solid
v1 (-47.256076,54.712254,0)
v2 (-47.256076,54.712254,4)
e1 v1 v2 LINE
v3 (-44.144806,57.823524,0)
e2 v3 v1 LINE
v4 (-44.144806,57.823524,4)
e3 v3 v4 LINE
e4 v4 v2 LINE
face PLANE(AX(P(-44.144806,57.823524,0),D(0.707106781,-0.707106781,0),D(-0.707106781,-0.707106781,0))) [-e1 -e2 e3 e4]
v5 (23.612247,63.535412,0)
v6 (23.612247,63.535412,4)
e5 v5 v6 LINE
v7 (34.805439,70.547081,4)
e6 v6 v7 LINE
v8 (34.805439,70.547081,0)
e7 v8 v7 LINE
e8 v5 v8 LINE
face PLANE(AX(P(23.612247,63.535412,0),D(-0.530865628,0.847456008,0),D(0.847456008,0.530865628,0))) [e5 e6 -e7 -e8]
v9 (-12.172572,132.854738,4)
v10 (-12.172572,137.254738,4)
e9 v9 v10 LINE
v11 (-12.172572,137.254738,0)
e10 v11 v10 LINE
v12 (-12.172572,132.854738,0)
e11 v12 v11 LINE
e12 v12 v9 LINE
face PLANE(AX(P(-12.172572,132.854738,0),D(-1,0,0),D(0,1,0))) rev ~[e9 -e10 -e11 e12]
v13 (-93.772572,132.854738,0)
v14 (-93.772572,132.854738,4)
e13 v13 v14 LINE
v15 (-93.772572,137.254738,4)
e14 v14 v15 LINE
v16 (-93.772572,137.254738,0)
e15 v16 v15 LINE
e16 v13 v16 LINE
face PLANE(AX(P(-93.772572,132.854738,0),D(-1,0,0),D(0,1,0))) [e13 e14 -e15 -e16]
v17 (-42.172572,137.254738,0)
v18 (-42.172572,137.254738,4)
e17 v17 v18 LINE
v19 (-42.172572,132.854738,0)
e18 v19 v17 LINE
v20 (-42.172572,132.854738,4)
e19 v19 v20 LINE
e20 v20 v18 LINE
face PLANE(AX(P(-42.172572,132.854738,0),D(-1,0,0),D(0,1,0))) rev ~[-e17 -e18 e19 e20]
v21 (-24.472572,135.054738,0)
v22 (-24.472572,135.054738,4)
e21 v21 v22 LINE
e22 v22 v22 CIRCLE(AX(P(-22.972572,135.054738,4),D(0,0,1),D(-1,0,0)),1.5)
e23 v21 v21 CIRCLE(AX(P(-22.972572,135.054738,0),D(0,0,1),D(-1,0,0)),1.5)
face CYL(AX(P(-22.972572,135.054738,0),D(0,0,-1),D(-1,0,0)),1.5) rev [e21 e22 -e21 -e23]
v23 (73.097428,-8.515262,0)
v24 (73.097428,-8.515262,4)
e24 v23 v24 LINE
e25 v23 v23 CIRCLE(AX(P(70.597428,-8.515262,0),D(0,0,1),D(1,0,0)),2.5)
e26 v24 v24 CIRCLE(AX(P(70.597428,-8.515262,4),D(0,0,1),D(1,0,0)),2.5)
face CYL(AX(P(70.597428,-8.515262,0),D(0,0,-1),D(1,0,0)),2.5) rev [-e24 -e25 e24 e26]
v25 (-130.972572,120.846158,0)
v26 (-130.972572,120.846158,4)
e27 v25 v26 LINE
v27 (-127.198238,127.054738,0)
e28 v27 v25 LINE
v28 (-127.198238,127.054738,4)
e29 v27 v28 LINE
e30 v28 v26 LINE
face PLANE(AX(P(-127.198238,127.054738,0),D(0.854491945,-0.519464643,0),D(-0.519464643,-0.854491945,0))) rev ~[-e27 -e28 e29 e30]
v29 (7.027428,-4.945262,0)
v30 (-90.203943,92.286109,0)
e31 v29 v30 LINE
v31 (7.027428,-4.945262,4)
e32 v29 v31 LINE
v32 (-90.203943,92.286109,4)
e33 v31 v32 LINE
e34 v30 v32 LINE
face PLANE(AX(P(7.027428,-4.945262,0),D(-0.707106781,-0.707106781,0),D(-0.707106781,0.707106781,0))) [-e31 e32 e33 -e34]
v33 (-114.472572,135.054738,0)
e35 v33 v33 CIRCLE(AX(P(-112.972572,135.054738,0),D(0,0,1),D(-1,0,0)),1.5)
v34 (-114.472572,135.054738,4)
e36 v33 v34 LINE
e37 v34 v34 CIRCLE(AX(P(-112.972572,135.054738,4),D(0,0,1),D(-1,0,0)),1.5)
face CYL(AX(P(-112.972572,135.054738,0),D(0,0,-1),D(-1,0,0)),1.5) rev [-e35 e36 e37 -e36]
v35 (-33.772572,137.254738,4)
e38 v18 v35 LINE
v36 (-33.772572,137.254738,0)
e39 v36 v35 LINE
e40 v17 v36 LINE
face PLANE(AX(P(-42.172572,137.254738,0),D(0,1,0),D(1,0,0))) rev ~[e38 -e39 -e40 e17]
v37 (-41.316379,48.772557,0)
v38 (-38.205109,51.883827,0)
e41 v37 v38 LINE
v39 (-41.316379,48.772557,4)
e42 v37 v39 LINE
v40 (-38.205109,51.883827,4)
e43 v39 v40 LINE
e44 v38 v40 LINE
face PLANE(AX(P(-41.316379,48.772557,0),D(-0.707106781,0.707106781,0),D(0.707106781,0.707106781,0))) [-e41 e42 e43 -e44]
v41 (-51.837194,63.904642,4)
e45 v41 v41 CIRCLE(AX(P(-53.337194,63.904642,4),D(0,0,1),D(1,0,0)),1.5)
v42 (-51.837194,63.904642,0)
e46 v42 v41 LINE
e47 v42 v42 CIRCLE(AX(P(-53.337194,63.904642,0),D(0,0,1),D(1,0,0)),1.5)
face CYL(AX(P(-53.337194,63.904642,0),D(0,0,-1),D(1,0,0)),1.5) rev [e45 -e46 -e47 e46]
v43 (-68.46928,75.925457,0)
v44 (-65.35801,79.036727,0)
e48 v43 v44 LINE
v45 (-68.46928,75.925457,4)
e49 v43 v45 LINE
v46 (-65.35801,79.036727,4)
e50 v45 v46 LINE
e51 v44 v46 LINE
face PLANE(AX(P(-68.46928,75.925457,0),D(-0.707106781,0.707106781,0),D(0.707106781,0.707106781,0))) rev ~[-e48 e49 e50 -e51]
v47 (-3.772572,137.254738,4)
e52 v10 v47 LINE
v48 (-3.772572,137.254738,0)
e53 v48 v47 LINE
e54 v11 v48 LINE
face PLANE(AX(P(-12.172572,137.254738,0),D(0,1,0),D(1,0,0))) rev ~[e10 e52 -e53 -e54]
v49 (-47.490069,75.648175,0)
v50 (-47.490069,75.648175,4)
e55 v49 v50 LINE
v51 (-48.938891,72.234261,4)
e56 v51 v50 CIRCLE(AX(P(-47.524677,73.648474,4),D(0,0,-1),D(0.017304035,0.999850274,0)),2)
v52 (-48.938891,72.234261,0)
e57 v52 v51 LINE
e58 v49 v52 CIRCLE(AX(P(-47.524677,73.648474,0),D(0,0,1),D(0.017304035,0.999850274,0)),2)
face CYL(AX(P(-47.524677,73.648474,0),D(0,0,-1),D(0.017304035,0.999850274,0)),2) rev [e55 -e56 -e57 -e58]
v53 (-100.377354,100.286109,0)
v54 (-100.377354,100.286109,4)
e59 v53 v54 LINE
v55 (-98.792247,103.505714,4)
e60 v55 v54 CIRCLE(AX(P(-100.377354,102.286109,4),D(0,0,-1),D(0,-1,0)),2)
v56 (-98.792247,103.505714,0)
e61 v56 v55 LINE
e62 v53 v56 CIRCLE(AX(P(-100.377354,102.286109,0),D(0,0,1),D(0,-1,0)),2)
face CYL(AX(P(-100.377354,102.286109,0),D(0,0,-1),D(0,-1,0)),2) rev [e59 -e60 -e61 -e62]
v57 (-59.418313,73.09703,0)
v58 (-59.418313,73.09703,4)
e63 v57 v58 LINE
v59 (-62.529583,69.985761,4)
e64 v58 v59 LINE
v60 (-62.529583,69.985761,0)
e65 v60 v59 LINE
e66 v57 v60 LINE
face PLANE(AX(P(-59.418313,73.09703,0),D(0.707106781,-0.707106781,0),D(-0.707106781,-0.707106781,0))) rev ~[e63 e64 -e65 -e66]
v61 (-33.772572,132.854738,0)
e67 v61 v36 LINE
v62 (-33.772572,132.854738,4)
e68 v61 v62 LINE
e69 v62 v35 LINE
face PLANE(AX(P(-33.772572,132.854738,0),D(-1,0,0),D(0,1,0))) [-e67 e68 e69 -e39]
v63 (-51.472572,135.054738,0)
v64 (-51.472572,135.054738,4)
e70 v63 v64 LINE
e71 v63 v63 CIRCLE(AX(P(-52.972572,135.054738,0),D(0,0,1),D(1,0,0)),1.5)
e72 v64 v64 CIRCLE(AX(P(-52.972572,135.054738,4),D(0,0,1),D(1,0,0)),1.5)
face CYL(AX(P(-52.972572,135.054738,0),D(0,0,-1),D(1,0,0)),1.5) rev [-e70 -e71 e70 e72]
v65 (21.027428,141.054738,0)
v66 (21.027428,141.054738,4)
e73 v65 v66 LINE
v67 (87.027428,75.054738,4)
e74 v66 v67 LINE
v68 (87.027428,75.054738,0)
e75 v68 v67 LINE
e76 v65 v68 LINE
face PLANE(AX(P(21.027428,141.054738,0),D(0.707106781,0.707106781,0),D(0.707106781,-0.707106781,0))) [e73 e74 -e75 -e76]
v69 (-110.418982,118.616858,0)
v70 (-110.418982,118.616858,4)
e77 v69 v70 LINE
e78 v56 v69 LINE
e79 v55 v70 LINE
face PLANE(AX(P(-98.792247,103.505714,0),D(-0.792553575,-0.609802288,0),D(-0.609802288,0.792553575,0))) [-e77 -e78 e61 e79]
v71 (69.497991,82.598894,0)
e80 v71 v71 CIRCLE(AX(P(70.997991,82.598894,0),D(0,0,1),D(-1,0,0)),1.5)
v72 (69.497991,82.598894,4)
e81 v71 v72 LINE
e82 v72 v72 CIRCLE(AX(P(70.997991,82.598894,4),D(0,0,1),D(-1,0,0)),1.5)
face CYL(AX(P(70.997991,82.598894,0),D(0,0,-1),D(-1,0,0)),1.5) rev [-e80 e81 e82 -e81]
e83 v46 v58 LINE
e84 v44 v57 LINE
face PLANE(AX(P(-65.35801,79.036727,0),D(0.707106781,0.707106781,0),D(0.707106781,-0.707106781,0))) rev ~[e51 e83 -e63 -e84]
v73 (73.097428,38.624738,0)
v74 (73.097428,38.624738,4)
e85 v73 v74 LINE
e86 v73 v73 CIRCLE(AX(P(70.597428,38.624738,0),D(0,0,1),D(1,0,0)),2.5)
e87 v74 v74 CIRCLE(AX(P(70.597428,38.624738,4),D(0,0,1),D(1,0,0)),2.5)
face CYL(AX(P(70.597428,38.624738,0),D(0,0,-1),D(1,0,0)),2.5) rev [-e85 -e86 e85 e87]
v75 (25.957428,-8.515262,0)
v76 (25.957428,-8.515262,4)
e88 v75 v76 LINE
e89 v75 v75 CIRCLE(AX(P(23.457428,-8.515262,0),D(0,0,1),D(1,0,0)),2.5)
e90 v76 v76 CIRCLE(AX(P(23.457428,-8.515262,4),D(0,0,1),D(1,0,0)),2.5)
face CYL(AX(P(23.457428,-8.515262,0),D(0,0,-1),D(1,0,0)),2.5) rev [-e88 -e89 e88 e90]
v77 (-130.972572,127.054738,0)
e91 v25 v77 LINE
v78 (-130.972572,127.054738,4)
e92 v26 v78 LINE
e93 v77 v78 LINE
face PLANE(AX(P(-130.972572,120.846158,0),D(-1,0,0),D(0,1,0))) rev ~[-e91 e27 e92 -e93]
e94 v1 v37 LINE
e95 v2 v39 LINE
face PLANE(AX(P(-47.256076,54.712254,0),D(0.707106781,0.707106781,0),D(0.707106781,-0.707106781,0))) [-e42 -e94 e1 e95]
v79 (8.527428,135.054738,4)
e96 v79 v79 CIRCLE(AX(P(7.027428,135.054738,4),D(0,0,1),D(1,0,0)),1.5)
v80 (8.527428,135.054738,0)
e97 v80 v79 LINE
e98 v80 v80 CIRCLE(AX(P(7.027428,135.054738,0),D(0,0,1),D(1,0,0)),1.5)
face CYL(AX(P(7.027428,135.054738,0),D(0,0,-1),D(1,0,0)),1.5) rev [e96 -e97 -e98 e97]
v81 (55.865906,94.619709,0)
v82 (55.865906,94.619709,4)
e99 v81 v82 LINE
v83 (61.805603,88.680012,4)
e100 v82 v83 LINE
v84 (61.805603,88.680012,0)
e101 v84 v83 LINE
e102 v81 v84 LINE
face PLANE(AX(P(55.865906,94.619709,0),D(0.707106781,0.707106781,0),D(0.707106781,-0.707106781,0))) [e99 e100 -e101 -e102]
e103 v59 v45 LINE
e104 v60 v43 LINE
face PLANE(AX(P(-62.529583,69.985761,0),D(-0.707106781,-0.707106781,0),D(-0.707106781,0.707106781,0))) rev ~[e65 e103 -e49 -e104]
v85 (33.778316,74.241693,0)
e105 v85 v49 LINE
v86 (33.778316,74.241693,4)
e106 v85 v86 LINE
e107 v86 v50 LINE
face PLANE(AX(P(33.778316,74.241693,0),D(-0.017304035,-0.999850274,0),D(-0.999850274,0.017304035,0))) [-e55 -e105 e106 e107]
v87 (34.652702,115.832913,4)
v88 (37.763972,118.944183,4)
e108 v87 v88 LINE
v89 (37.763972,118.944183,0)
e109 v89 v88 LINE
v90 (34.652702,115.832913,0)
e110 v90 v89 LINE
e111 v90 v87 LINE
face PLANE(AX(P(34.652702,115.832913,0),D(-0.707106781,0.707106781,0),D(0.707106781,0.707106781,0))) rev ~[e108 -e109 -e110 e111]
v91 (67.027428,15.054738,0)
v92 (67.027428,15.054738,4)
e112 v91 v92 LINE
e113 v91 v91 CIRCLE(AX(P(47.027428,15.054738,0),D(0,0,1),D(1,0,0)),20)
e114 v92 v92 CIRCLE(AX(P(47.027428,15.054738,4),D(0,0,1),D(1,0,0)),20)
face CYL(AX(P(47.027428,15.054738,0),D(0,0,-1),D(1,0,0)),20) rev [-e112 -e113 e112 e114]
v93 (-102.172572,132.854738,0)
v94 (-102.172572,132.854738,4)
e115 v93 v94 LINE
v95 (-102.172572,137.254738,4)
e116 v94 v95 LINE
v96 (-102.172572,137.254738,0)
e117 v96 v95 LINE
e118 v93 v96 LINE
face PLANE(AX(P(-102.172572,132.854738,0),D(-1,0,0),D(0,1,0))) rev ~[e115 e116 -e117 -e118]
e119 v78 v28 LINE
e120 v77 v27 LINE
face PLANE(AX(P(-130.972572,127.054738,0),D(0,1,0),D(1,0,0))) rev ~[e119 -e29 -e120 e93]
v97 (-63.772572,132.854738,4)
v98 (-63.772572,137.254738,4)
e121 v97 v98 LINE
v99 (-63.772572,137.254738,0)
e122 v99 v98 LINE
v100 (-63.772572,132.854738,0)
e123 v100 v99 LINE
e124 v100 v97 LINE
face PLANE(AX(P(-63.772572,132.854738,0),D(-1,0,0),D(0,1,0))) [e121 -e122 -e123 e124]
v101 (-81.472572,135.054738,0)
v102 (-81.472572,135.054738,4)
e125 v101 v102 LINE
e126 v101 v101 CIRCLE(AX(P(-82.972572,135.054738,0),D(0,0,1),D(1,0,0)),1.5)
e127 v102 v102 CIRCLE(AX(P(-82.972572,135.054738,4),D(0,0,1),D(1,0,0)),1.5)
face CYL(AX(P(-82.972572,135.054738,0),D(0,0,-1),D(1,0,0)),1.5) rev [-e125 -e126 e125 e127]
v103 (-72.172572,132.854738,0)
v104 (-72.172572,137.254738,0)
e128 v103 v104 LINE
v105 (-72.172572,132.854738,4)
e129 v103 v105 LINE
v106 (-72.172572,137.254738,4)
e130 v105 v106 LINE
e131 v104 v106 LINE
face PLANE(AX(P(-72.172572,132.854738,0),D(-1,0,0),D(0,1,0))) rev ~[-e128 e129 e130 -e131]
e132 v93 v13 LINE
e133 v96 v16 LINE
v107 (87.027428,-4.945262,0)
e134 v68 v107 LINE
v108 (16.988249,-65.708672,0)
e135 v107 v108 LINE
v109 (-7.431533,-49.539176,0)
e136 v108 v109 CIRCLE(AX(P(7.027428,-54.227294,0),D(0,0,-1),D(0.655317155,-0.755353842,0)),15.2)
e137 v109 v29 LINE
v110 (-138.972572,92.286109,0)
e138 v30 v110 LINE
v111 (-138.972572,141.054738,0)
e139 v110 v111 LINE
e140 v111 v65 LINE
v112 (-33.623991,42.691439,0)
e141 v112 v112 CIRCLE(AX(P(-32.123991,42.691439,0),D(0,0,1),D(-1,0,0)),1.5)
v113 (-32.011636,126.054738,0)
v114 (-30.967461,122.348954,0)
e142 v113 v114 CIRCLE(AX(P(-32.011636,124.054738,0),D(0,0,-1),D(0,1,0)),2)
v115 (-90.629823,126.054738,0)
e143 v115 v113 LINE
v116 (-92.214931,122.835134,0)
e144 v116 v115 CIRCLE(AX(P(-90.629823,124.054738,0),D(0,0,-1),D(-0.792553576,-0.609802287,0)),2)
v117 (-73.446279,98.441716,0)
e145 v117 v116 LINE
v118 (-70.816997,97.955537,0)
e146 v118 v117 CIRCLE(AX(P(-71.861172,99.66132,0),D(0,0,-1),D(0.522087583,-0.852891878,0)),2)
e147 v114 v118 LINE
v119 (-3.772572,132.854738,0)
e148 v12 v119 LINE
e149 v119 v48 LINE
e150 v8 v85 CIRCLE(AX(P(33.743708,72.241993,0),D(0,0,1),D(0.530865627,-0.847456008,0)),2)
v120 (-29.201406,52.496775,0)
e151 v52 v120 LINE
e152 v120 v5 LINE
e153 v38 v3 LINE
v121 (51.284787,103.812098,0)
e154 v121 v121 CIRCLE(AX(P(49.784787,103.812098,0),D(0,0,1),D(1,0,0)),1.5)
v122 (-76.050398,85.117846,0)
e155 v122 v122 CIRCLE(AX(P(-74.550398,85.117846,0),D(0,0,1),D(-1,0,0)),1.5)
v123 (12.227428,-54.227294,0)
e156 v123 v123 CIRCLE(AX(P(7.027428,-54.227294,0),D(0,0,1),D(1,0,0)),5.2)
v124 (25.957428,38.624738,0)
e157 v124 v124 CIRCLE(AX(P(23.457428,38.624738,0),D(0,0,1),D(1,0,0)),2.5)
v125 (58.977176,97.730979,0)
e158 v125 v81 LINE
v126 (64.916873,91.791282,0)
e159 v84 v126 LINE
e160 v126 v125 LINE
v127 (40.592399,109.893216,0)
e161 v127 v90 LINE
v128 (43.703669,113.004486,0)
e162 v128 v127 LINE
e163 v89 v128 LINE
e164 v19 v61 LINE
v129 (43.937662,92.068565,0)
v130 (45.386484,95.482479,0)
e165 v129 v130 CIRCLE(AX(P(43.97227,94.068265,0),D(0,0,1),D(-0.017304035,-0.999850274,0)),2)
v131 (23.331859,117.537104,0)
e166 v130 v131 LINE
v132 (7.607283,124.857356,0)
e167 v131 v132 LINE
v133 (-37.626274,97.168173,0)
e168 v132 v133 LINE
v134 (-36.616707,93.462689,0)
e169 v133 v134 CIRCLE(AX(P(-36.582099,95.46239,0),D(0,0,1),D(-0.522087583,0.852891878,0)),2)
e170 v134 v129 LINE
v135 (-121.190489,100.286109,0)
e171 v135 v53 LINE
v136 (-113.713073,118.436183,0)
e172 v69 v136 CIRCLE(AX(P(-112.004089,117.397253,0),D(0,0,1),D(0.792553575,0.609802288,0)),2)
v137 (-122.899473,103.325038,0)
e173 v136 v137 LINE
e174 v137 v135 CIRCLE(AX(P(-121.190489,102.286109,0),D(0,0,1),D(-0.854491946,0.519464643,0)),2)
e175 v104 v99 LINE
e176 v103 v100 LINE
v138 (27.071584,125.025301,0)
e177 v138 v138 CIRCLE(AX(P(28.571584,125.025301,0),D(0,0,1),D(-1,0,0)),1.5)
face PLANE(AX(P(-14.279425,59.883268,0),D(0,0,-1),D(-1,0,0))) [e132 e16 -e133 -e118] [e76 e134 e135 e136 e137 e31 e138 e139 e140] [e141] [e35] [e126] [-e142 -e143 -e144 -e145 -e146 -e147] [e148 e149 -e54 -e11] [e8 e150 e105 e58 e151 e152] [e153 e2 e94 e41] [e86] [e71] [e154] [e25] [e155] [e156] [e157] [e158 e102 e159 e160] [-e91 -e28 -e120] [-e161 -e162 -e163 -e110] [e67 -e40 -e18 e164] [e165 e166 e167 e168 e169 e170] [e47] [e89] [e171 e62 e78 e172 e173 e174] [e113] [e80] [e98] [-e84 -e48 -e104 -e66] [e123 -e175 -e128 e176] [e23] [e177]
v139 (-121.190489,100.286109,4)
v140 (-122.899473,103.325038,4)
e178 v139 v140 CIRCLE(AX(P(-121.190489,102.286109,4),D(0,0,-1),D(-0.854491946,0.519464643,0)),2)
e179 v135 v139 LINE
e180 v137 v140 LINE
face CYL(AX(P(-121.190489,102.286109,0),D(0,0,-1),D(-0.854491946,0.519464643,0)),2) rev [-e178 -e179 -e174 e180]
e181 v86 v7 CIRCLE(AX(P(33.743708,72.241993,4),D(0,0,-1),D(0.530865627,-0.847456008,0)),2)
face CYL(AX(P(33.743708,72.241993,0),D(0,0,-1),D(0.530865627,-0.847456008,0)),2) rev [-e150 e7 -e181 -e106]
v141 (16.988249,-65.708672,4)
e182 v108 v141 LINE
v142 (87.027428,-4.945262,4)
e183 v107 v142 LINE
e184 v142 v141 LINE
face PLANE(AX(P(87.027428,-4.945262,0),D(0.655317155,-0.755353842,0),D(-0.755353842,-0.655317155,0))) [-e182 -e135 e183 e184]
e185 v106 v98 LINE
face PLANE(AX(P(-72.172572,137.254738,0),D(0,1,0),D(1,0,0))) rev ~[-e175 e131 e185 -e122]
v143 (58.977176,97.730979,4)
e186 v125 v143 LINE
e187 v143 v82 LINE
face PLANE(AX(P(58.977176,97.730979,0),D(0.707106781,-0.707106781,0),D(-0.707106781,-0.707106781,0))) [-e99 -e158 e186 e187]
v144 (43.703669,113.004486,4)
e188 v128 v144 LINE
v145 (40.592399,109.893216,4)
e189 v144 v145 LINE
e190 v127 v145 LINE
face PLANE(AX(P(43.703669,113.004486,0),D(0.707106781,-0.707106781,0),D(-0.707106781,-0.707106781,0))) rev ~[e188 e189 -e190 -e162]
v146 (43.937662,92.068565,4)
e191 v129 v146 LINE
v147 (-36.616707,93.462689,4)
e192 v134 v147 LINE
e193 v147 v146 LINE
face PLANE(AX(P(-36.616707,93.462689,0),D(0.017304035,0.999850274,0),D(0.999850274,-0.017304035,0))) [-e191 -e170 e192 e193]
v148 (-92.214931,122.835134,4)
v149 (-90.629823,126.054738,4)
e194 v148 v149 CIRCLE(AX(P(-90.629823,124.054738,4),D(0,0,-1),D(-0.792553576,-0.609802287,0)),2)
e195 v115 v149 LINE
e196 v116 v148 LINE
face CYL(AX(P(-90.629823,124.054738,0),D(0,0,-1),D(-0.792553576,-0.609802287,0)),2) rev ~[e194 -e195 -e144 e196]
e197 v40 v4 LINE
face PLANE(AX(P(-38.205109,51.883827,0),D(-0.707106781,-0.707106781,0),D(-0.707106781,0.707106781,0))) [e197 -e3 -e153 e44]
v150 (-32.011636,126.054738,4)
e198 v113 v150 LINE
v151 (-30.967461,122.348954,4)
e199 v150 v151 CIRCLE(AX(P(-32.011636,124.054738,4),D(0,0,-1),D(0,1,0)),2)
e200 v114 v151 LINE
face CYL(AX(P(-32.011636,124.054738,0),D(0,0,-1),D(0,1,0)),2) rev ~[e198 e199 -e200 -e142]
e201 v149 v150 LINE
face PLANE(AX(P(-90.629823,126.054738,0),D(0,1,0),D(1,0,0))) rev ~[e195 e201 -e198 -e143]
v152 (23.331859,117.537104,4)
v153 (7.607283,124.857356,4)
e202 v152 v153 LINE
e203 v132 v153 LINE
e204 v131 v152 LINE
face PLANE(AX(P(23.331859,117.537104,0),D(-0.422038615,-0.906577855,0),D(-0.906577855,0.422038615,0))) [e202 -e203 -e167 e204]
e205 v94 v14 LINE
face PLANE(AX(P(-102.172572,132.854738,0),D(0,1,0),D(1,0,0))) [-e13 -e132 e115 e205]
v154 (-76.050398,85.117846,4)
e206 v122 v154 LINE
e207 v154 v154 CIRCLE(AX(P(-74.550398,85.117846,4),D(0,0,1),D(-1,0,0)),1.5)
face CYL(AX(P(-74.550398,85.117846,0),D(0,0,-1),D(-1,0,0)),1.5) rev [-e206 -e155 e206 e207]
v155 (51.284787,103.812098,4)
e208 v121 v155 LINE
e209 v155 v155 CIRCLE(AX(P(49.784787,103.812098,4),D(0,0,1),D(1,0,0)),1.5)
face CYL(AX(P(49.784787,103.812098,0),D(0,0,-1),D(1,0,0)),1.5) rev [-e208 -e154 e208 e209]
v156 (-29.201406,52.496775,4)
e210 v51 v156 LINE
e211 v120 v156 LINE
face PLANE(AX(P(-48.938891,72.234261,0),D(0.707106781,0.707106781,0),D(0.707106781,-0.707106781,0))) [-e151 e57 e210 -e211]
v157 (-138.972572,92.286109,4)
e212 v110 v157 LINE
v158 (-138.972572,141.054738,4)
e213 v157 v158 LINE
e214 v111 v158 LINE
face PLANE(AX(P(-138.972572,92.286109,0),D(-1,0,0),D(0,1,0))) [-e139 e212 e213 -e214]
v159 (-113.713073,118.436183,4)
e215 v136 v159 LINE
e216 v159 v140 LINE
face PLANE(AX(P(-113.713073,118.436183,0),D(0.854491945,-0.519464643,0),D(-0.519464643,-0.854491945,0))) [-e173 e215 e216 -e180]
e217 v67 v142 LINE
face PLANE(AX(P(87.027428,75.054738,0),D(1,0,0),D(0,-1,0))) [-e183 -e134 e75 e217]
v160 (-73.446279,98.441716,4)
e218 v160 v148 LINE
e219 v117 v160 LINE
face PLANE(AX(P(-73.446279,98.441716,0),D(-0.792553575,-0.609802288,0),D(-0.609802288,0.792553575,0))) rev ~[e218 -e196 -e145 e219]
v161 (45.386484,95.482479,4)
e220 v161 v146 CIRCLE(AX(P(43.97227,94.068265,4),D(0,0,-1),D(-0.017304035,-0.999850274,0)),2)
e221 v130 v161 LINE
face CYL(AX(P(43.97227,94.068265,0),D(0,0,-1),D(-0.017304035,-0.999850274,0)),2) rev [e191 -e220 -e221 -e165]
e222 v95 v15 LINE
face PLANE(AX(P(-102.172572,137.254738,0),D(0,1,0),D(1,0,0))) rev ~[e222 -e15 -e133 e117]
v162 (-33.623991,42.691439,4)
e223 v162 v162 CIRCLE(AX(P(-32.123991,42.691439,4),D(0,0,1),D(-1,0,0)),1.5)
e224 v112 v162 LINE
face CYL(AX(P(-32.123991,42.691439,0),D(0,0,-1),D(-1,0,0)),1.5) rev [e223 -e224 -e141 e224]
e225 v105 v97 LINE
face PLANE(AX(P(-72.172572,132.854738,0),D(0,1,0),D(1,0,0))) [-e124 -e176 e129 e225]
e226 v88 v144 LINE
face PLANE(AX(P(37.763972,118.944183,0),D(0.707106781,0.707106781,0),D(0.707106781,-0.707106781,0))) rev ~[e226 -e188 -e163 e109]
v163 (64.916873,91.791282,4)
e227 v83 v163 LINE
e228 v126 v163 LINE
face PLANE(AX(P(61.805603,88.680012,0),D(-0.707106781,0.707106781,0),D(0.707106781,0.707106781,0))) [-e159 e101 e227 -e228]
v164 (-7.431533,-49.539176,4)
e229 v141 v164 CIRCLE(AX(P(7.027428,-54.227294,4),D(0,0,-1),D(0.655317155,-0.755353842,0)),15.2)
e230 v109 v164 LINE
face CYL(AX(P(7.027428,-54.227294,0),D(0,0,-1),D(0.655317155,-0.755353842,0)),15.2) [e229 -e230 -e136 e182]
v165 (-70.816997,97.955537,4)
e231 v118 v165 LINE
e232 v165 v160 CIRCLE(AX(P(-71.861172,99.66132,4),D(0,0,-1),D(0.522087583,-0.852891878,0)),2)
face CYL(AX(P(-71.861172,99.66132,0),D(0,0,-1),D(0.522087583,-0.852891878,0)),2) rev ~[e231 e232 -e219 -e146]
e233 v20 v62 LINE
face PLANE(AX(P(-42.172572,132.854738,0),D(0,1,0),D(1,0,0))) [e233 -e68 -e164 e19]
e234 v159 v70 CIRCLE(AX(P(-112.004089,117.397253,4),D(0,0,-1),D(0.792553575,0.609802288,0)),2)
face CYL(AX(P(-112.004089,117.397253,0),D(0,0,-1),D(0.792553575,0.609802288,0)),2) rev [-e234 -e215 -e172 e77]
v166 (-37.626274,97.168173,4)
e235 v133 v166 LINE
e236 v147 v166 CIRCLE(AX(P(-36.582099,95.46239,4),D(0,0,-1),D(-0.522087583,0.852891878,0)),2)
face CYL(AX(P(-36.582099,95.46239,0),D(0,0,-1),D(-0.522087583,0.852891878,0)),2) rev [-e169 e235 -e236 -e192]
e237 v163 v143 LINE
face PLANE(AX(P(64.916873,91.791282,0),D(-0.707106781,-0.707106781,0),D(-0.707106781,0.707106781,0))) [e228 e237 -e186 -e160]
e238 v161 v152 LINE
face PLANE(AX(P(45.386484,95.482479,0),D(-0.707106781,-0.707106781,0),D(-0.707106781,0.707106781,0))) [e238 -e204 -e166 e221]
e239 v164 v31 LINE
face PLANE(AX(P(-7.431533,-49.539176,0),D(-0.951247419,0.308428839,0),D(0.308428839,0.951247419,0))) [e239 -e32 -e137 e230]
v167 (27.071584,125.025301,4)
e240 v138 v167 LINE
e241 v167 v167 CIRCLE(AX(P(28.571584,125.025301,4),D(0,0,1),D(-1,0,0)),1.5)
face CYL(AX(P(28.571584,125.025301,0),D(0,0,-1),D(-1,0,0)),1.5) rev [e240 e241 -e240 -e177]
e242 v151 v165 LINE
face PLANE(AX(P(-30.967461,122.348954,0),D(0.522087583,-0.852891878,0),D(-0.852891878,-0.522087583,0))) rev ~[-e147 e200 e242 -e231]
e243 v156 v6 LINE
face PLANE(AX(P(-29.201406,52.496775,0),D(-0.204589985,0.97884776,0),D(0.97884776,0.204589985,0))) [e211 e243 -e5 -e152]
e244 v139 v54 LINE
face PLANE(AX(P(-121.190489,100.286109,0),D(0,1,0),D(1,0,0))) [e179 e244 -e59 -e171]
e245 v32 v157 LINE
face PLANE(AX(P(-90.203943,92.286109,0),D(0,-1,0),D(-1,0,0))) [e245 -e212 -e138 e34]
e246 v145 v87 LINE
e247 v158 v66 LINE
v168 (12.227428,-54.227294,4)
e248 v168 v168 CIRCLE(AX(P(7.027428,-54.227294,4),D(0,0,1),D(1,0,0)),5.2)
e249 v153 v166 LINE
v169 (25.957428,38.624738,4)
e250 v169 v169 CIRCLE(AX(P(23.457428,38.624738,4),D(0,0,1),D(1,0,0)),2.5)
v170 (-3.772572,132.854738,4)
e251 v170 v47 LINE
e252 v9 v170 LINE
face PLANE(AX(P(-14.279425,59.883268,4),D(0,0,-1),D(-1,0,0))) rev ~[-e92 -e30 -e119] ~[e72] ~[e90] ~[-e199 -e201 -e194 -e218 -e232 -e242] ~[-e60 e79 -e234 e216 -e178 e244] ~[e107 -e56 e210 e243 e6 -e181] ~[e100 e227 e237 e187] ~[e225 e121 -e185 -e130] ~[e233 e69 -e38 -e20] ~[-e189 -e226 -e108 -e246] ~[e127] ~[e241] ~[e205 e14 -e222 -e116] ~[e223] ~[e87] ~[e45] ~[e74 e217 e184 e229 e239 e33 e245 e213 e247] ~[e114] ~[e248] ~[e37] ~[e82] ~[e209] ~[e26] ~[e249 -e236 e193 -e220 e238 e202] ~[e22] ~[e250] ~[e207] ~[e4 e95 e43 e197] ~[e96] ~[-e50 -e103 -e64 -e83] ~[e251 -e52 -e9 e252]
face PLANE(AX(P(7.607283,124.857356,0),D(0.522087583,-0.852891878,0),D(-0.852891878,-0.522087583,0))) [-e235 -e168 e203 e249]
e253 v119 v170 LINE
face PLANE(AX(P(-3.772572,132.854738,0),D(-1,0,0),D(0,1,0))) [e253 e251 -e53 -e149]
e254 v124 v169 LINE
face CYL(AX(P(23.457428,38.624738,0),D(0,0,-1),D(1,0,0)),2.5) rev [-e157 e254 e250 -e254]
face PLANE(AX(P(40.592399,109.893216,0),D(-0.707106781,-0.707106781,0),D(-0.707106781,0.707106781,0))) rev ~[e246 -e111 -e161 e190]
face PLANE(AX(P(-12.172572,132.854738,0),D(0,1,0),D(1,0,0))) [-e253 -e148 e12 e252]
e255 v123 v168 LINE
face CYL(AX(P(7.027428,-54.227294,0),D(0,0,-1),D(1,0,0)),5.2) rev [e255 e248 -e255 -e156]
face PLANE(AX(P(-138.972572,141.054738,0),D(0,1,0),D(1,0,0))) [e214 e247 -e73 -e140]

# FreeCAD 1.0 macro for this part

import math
import FreeCAD as App
import Part
import Sketcher

V = App.Vector
Q = App.Units.Quantity

doc = App.newDocument("Part")
params = doc.addObject("Spreadsheet::Sheet", "Params")
for row, (alias, value) in enumerate([
    ("sketch1_diameter", "5 mm"),
    ("sketch1_diameter2", "40 mm"),
    ("sketch1_diameter3", "3 mm"),
    ("sketch1_diameter4", "10.4 mm"),
    ("sketch1_radius", "15.2 mm"),
    ("pad1_length", "4 mm"),
    ("sketch2_radius", "2 mm"),
    ("pocket1_length", "10 mm"),
], start=1):
    params.set(f"A{row}", alias)
    params.set(f"B{row}", "=" + value)
    params.setAlias(f"B{row}", alias)

body = doc.addObject("PartDesign::Body", "Body")

# Sketch on XY plane
sketch1 = body.newObject("Sketcher::SketchObject", "Sketch")
sketch1.AttachmentSupport = (doc.getObject("XY_Plane"), [""])
sketch1.MapMode = "FlatFace"
sketch1.addGeometry([
    Part.LineSegment(V(21, 141.1, 0), V(-139, 141.1, 0)),  # 0
    Part.LineSegment(V(-139, 141.1, 0), V(-139, 92.3, 0)),  # 1
    Part.LineSegment(V(-139, 92.3, 0), V(-90.2, 92.3, 0)),  # 2
    Part.LineSegment(V(-90.2, 92.3, 0), V(7, -4.9, 0)),  # 3
    Part.LineSegment(V(7, -4.9, 0), V(-7.4, -49.5, 0)),  # 4
    Part.ArcOfCircle(Part.Circle(V(7, -54.2, 0), V(0, 0, 1), 15.2), math.radians(162), math.radians(311)),  # 5
    Part.LineSegment(V(17, -65.7, 0), V(87, -4.9, 0)),  # 6
    Part.LineSegment(V(87, -4.9, 0), V(87, 75.1, 0)),  # 7
    Part.LineSegment(V(87, 75.1, 0), V(21, 141.1, 0)),  # 8
    Part.Circle(V(7, -54.2, 0), V(0, 0, 1), 5.2),  # 9
    Part.Circle(V(70.6, -8.5, 0), V(0, 0, 1), 2.5),  # 10
    Part.Circle(V(70.6, 38.6, 0), V(0, 0, 1), 2.5),  # 11
    Part.Circle(V(47, 15.1, 0), V(0, 0, 1), 20),  # 12
    Part.Circle(V(23.5, -8.5, 0), V(0, 0, 1), 2.5),  # 13
    Part.Circle(V(23.5, 38.6, 0), V(0, 0, 1), 2.5),  # 14
    Part.Circle(V(71, 82.6, 0), V(0, 0, 1), 1.5),  # 15
    Part.LineSegment(V(55.9, 94.6, 0), V(59, 97.7, 0)),  # 16
    Part.LineSegment(V(59, 97.7, 0), V(64.9, 91.8, 0)),  # 17
    Part.LineSegment(V(64.9, 91.8, 0), V(61.8, 88.7, 0)),  # 18
    Part.LineSegment(V(61.8, 88.7, 0), V(55.9, 94.6, 0)),  # 19
    Part.Circle(V(49.8, 103.8, 0), V(0, 0, 1), 1.5),  # 20
    Part.LineSegment(V(34.7, 115.8, 0), V(37.8, 118.9, 0)),  # 21
    Part.LineSegment(V(37.8, 118.9, 0), V(43.7, 113, 0)),  # 22
    Part.LineSegment(V(43.7, 113, 0), V(40.6, 109.9, 0)),  # 23
    Part.LineSegment(V(40.6, 109.9, 0), V(34.7, 115.8, 0)),  # 24
    Part.Circle(V(28.6, 125, 0), V(0, 0, 1), 1.5),  # 25
    Part.Circle(V(7, 135.1, 0), V(0, 0, 1), 1.5),  # 26
    Part.LineSegment(V(-12.2, 132.9, 0), V(-12.2, 137.3, 0)),  # 27
    Part.LineSegment(V(-12.2, 137.3, 0), V(-3.8, 137.3, 0)),  # 28
    Part.LineSegment(V(-3.8, 137.3, 0), V(-3.8, 132.9, 0)),  # 29
    Part.LineSegment(V(-3.8, 132.9, 0), V(-12.2, 132.9, 0)),  # 30
    Part.Circle(V(-32.1, 42.7, 0), V(0, 0, 1), 1.5),  # 31
    Part.LineSegment(V(-47.3, 54.7, 0), V(-44.1, 57.8, 0)),  # 32
    Part.LineSegment(V(-44.1, 57.8, 0), V(-38.2, 51.9, 0)),  # 33
    Part.LineSegment(V(-38.2, 51.9, 0), V(-41.3, 48.8, 0)),  # 34
    Part.LineSegment(V(-41.3, 48.8, 0), V(-47.3, 54.7, 0)),  # 35
    Part.Circle(V(-53.3, 63.9, 0), V(0, 0, 1), 1.5),  # 36
    Part.LineSegment(V(-68.5, 75.9, 0), V(-65.4, 79, 0)),  # 37
    Part.LineSegment(V(-65.4, 79, 0), V(-59.4, 73.1, 0)),  # 38
    Part.LineSegment(V(-59.4, 73.1, 0), V(-62.5, 70, 0)),  # 39
    Part.LineSegment(V(-62.5, 70, 0), V(-68.5, 75.9, 0)),  # 40
    Part.Circle(V(-74.6, 85.1, 0), V(0, 0, 1), 1.5),  # 41
    Part.Circle(V(-23, 135.1, 0), V(0, 0, 1), 1.5),  # 42
    Part.LineSegment(V(-42.2, 132.9, 0), V(-42.2, 137.3, 0)),  # 43
    Part.LineSegment(V(-42.2, 137.3, 0), V(-33.8, 137.3, 0)),  # 44
    Part.LineSegment(V(-33.8, 137.3, 0), V(-33.8, 132.9, 0)),  # 45
    Part.LineSegment(V(-33.8, 132.9, 0), V(-42.2, 132.9, 0)),  # 46
    Part.Circle(V(-53, 135.1, 0), V(0, 0, 1), 1.5),  # 47
    Part.LineSegment(V(-72.2, 132.9, 0), V(-72.2, 137.3, 0)),  # 48
    Part.LineSegment(V(-72.2, 137.3, 0), V(-63.8, 137.3, 0)),  # 49
    Part.LineSegment(V(-63.8, 137.3, 0), V(-63.8, 132.9, 0)),  # 50
    Part.LineSegment(V(-63.8, 132.9, 0), V(-72.2, 132.9, 0)),  # 51
    Part.Circle(V(-83, 135.1, 0), V(0, 0, 1), 1.5),  # 52
    Part.LineSegment(V(-102.2, 132.9, 0), V(-102.2, 137.3, 0)),  # 53
    Part.LineSegment(V(-102.2, 137.3, 0), V(-93.8, 137.3, 0)),  # 54
    Part.LineSegment(V(-93.8, 137.3, 0), V(-93.8, 132.9, 0)),  # 55
    Part.LineSegment(V(-93.8, 132.9, 0), V(-102.2, 132.9, 0)),  # 56
    Part.Circle(V(-113, 135.1, 0), V(0, 0, 1), 1.5),  # 57
], False)
sketch1.addConstraint([
    Sketcher.Constraint("Coincident", 0, 2, 1, 1),
    Sketcher.Constraint("Coincident", 1, 2, 2, 1),
    Sketcher.Constraint("Coincident", 2, 2, 3, 1),
    Sketcher.Constraint("Coincident", 3, 2, 4, 1),
    Sketcher.Constraint("Tangent", 4, 2, 5, 1),
    Sketcher.Constraint("Tangent", 5, 2, 6, 1),
    Sketcher.Constraint("Coincident", 6, 2, 7, 1),
    Sketcher.Constraint("Coincident", 7, 2, 8, 1),
    Sketcher.Constraint("Coincident", 8, 2, 0, 1),
    Sketcher.Constraint("Coincident", 16, 2, 17, 1),
    Sketcher.Constraint("Coincident", 17, 2, 18, 1),
    Sketcher.Constraint("Coincident", 18, 2, 19, 1),
    Sketcher.Constraint("Coincident", 19, 2, 16, 1),
    Sketcher.Constraint("Coincident", 21, 2, 22, 1),
    Sketcher.Constraint("Coincident", 22, 2, 23, 1),
    Sketcher.Constraint("Coincident", 23, 2, 24, 1),
    Sketcher.Constraint("Coincident", 24, 2, 21, 1),
    Sketcher.Constraint("Coincident", 27, 2, 28, 1),
    Sketcher.Constraint("Coincident", 28, 2, 29, 1),
    Sketcher.Constraint("Coincident", 29, 2, 30, 1),
    Sketcher.Constraint("Coincident", 30, 2, 27, 1),
    Sketcher.Constraint("Coincident", 32, 2, 33, 1),
    Sketcher.Constraint("Coincident", 33, 2, 34, 1),
    Sketcher.Constraint("Coincident", 34, 2, 35, 1),
    Sketcher.Constraint("Coincident", 35, 2, 32, 1),
    Sketcher.Constraint("Coincident", 37, 2, 38, 1),
    Sketcher.Constraint("Coincident", 38, 2, 39, 1),
    Sketcher.Constraint("Coincident", 39, 2, 40, 1),
    Sketcher.Constraint("Coincident", 40, 2, 37, 1),
    Sketcher.Constraint("Coincident", 43, 2, 44, 1),
    Sketcher.Constraint("Coincident", 44, 2, 45, 1),
    Sketcher.Constraint("Coincident", 45, 2, 46, 1),
    Sketcher.Constraint("Coincident", 46, 2, 43, 1),
    Sketcher.Constraint("Coincident", 48, 2, 49, 1),
    Sketcher.Constraint("Coincident", 49, 2, 50, 1),
    Sketcher.Constraint("Coincident", 50, 2, 51, 1),
    Sketcher.Constraint("Coincident", 51, 2, 48, 1),
    Sketcher.Constraint("Coincident", 53, 2, 54, 1),
    Sketcher.Constraint("Coincident", 54, 2, 55, 1),
    Sketcher.Constraint("Coincident", 55, 2, 56, 1),
    Sketcher.Constraint("Coincident", 56, 2, 53, 1),
    Sketcher.Constraint("Horizontal", 0),
    Sketcher.Constraint("Vertical", 1),
    Sketcher.Constraint("Horizontal", 2),
    Sketcher.Constraint("Vertical", 7),
    Sketcher.Constraint("Vertical", 27),
    Sketcher.Constraint("Horizontal", 28),
    Sketcher.Constraint("Vertical", 29),
    Sketcher.Constraint("Horizontal", 30),
    Sketcher.Constraint("Vertical", 43),
    Sketcher.Constraint("Horizontal", 44),
    Sketcher.Constraint("Vertical", 45),
    Sketcher.Constraint("Horizontal", 46),
    Sketcher.Constraint("Vertical", 48),
    Sketcher.Constraint("Horizontal", 49),
    Sketcher.Constraint("Vertical", 50),
    Sketcher.Constraint("Horizontal", 51),
    Sketcher.Constraint("Vertical", 53),
    Sketcher.Constraint("Horizontal", 54),
    Sketcher.Constraint("Vertical", 55),
    Sketcher.Constraint("Horizontal", 56),
    Sketcher.Constraint("Coincident", 9, 3, 5, 3),
    Sketcher.Constraint("Equal", 10, 11),
    Sketcher.Constraint("Equal", 11, 13),
    Sketcher.Constraint("Equal", 13, 14),
    Sketcher.Constraint("Equal", 15, 20),
    Sketcher.Constraint("Equal", 20, 25),
    Sketcher.Constraint("Equal", 25, 26),
    Sketcher.Constraint("Equal", 26, 31),
    Sketcher.Constraint("Equal", 31, 36),
    Sketcher.Constraint("Equal", 36, 41),
    Sketcher.Constraint("Equal", 41, 42),
    Sketcher.Constraint("Equal", 42, 47),
    Sketcher.Constraint("Equal", 47, 52),
    Sketcher.Constraint("Equal", 52, 57),
    Sketcher.Constraint("Parallel", 3, 8),
    Sketcher.Constraint("Perpendicular", 8, 16),
    Sketcher.Constraint("Perpendicular", 16, 17),
    Sketcher.Constraint("Perpendicular", 17, 18),
    Sketcher.Constraint("Perpendicular", 18, 19),
    Sketcher.Constraint("Perpendicular", 19, 21),
    Sketcher.Constraint("Perpendicular", 21, 22),
    Sketcher.Constraint("Perpendicular", 22, 23),
    Sketcher.Constraint("Perpendicular", 23, 24),
    Sketcher.Constraint("Perpendicular", 24, 32),
    Sketcher.Constraint("Perpendicular", 32, 33),
    Sketcher.Constraint("Perpendicular", 33, 34),
    Sketcher.Constraint("Perpendicular", 34, 35),
    Sketcher.Constraint("Perpendicular", 35, 37),
    Sketcher.Constraint("Perpendicular", 37, 38),
    Sketcher.Constraint("Perpendicular", 38, 39),
    Sketcher.Constraint("Perpendicular", 39, 40),
    Sketcher.Constraint("Horizontal", 10, 3, 13, 3),
    Sketcher.Constraint("Horizontal", 11, 3, 14, 3),
    Sketcher.Constraint("Horizontal", 26, 3, 42, 3),
    Sketcher.Constraint("Horizontal", 42, 3, 47, 3),
    Sketcher.Constraint("Horizontal", 47, 3, 52, 3),
    Sketcher.Constraint("Horizontal", 52, 3, 57, 3),
    Sketcher.Constraint("Horizontal", 3, 2, 6, 2),
    Sketcher.Constraint("Horizontal", 28, 2, 43, 2),
    Sketcher.Constraint("Horizontal", 30, 2, 45, 2),
    Sketcher.Constraint("Horizontal", 44, 2, 48, 2),
    Sketcher.Constraint("Horizontal", 46, 2, 50, 2),
    Sketcher.Constraint("Horizontal", 49, 2, 53, 2),
    Sketcher.Constraint("Horizontal", 51, 2, 55, 2),
    Sketcher.Constraint("Vertical", 10, 3, 11, 3),
    Sketcher.Constraint("Vertical", 13, 3, 14, 3),
    Sketcher.Constraint("Vertical", 9, 3, 26, 3),
    Sketcher.Constraint("Vertical", 26, 3, 3, 2),
    Sketcher.Constraint("Equal", 30, 44),
    Sketcher.Constraint("Equal", 46, 49),
    Sketcher.Constraint("Equal", 51, 54),
    Sketcher.Constraint("Equal", 2, 1),
    Sketcher.Constraint("Equal", 18, 21),
    Sketcher.Constraint("Equal", 19, 22),
    Sketcher.Constraint("Equal", 23, 32),
    Sketcher.Constraint("Equal", 24, 33),
    Sketcher.Constraint("Equal", 34, 37),
    Sketcher.Constraint("Equal", 35, 38),
    Sketcher.Constraint("Diameter", 10, 5.0),
    Sketcher.Constraint("Diameter", 12, 40.0),
    Sketcher.Constraint("Diameter", 15, 3.0),
    Sketcher.Constraint("Diameter", 9, 10.4),
    Sketcher.Constraint("Radius", 5, 15.2),
    Sketcher.Constraint("DistanceX", 0, 2, 0, 1, 160.0),
    Sketcher.Constraint("DistanceY", 7, 1, 7, 2, 80.0),
    Sketcher.Constraint("Angle", 3, Q("-45 deg")),
    Sketcher.Constraint("DistanceX", 28, 1, 28, 2, 8.4),
    Sketcher.Constraint("DistanceY", 27, 1, 27, 2, 4.4),
    Sketcher.Constraint("DistanceX", 5, 3, 12, 3, 40.0),
    Sketcher.Constraint("DistanceX", 42, 3, 26, 3, 30.0),
    Sketcher.Constraint("DistanceX", 47, 3, 42, 3, 30.0),
    Sketcher.Constraint("DistanceX", 52, 3, 47, 3, 30.0),
    Sketcher.Constraint("DistanceX", 57, 3, 52, 3, 30.0),
    Sketcher.Constraint("DistanceX", 0, 2, 57, 3, 26.0),
    Sketcher.Constraint("DistanceY", 57, 3, 0, 2, 6.0),
    Sketcher.Constraint("DistanceY", 3, 2, 12, 3, 20.0),
    Sketcher.Constraint("DistanceX", 43, 2, 27, 2, 30.0),
    Sketcher.Constraint("DistanceX", 48, 2, 43, 2, 30.0),
    Sketcher.Constraint("DistanceX", 53, 2, 48, 2, 30.0),
    Sketcher.Constraint("Distance", 16, 4.4),
    Sketcher.Constraint("Distance", 17, 8.4),
    Sketcher.Constraint("DistanceX", 42, 3, 27, 2, 10.8),
    Sketcher.Constraint("DistanceY", 42, 3, 27, 2, 2.2),
    Sketcher.Constraint("DistanceX", 5, 3, 10, 3, 63.57),
    Sketcher.Constraint("DistanceY", 10, 3, 11, 3, 47.14),
    Sketcher.Constraint("DistanceY", 10, 3, 12, 3, 23.57),
    Sketcher.Constraint("DistanceX", 13, 3, 12, 3, 23.57),
    Sketcher.Constraint("DistanceX", 2, 1, 2, 2, 48.768629),
    Sketcher.Constraint("DistanceY", -1, 1, 25, 3, 125.025301),
    Sketcher.Constraint("DistanceX", -1, 1, 23, 2, 40.592399),
    Sketcher.Constraint("DistanceY", 14, 3, 31, 3, 4.066701),
    Sketcher.Constraint("Distance", 6, 92.723669),
    Sketcher.Constraint("DistanceX", -1, 1, 5, 3, 7.027428),
    Sketcher.Constraint("DistanceY", 10, 3, -1, 1, 8.515262),
    Sketcher.Constraint("DistanceX", -1, 1, 15, 3, 70.997991),
    Sketcher.Constraint("DistanceX", 31, 3, -1, 1, 32.123991),
    Sketcher.Constraint("DistanceY", -1, 1, 16, 2, 97.730979),
    Sketcher.Constraint("DistanceX", 33, 2, -1, 1, 38.205109),
    Sketcher.Constraint("DistanceX", 37, 2, -1, 1, 65.35801),
    Sketcher.Constraint("DistanceY", -1, 1, 38, 2, 73.09703),
    Sketcher.Constraint("DistanceX", 20, 3, 11, 3, 20.812641),
    Sketcher.Constraint("DistanceY", 11, 3, 20, 3, 65.187359),
    Sketcher.Constraint("DistanceX", 36, 3, 25, 3, 81.908779),
    Sketcher.Constraint("DistanceY", 36, 3, 25, 3, 61.120659),
    Sketcher.Constraint("DistanceX", 41, 3, 25, 3, 103.121982),
    Sketcher.Constraint("DistanceX", 2, 2, 36, 3, 36.866748),
    Sketcher.Constraint("DistanceX", 20, 3, 16, 2, 9.192388),
    Sketcher.Constraint("DistanceY", 15, 3, 17, 2, 9.192388),
    Sketcher.Constraint("DistanceY", 21, 2, 25, 3, 6.081118),
    Sketcher.Constraint("DistanceY", 32, 2, 36, 3, 6.081118),
    Sketcher.Constraint("DistanceY", 32, 2, 41, 3, 27.294322),
])
sketch1.setExpression("Constraints[119]", "Params.sketch1_diameter")
sketch1.setExpression("Constraints[120]", "Params.sketch1_diameter2")
sketch1.setExpression("Constraints[121]", "Params.sketch1_diameter3")
sketch1.setExpression("Constraints[122]", "Params.sketch1_diameter4")
sketch1.setExpression("Constraints[123]", "Params.sketch1_radius")
pad1 = body.newObject("PartDesign::Pad", "Pad")
pad1.Profile = sketch1
pad1.setExpression("Length", "Params.pad1_length")

# Sketch on XY plane
sketch2 = body.newObject("Sketcher::SketchObject", "Sketch001")
sketch2.AttachmentSupport = (doc.getObject("XY_Plane"), [""])
sketch2.MapMode = "FlatFace"
sketch2.addGeometry([
    Part.LineSegment(V(-110.4, 118.6, 0), V(-98.8, 103.5, 0)),  # 0
    Part.ArcOfCircle(Part.Circle(V(-100.4, 102.3, 0), V(0, 0, 1), 2), math.radians(-90), math.radians(38)),  # 1
    Part.LineSegment(V(-100.4, 100.3, 0), V(-121.2, 100.3, 0)),  # 2
    Part.ArcOfCircle(Part.Circle(V(-121.2, 102.3, 0), V(0, 0, 1), 2), math.radians(149), math.radians(270)),  # 3
    Part.LineSegment(V(-122.9, 103.3, 0), V(-113.7, 118.4, 0)),  # 4
    Part.ArcOfCircle(Part.Circle(V(-112, 117.4, 0), V(0, 0, 1), 2), math.radians(38), math.radians(149)),  # 5
    Part.LineSegment(V(-127.2, 127.1, 0), V(-131, 120.8, 0)),  # 6
    Part.LineSegment(V(-131, 120.8, 0), V(-131, 127.1, 0)),  # 7
    Part.LineSegment(V(-131, 127.1, 0), V(-127.2, 127.1, 0)),  # 8
    Part.LineSegment(V(-73.4, 98.4, 0), V(-92.2, 122.8, 0)),  # 9
    Part.ArcOfCircle(Part.Circle(V(-90.6, 124.1, 0), V(0, 0, 1), 2), math.radians(90), math.radians(218)),  # 10
    Part.LineSegment(V(-90.6, 126.1, 0), V(-32, 126.1, 0)),  # 11
    Part.ArcOfCircle(Part.Circle(V(-32, 124.1, 0), V(0, 0, 1), 2), math.radians(-59), math.radians(90)),  # 12
    Part.LineSegment(V(-31, 122.3, 0), V(-70.8, 98, 0)),  # 13
    Part.ArcOfCircle(Part.Circle(V(-71.9, 99.7, 0), V(0, 0, 1), 2), math.radians(-142), math.radians(-59)),  # 14
    Part.LineSegment(V(43.9, 92.1, 0), V(-36.6, 93.5, 0)),  # 15
    Part.ArcOfCircle(Part.Circle(V(-36.6, 95.5, 0), V(0, 0, 1), 2), math.radians(121), math.radians(269)),  # 16
    Part.LineSegment(V(-37.6, 97.2, 0), V(7.6, 124.9, 0)),  # 17
    Part.LineSegment(V(7.6, 124.9, 0), V(23.3, 117.5, 0)),  # 18
    Part.LineSegment(V(23.3, 117.5, 0), V(45.4, 95.5, 0)),  # 19
    Part.ArcOfCircle(Part.Circle(V(44, 94.1, 0), V(0, 0, 1), 2), math.radians(-91), math.radians(45)),  # 20
    Part.LineSegment(V(23.6, 63.5, 0), V(-29.2, 52.5, 0)),  # 21
    Part.LineSegment(V(-29.2, 52.5, 0), V(-48.9, 72.2, 0)),  # 22
    Part.ArcOfCircle(Part.Circle(V(-47.5, 73.6, 0), V(0, 0, 1), 2), math.radians(89), math.radians(225)),  # 23
    Part.LineSegment(V(-47.5, 75.6, 0), V(33.8, 74.2, 0)),  # 24
    Part.ArcOfCircle(Part.Circle(V(33.7, 72.2, 0), V(0, 0, 1), 2), math.radians(-58), math.radians(89)),  # 25
    Part.LineSegment(V(34.8, 70.5, 0), V(23.6, 63.5, 0)),  # 26
], False)
sketch2.addConstraint([
    Sketcher.Constraint("Tangent", 0, 2, 1, 2),
    Sketcher.Constraint("Tangent", 1, 1, 2, 1),
    Sketcher.Constraint("Tangent", 2, 2, 3, 2),
    Sketcher.Constraint("Tangent", 3, 1, 4, 1),
    Sketcher.Constraint("Tangent", 4, 2, 5, 2),
    Sketcher.Constraint("Tangent", 5, 1, 0, 1),
    Sketcher.Constraint("Coincident", 6, 2, 7, 1),
    Sketcher.Constraint("Coincident", 7, 2, 8, 1),
    Sketcher.Constraint("Coincident", 8, 2, 6, 1),
    Sketcher.Constraint("Tangent", 9, 2, 10, 2),
    Sketcher.Constraint("Tangent", 10, 1, 11, 1),
    Sketcher.Constraint("Tangent", 11, 2, 12, 2),
    Sketcher.Constraint("Tangent", 12, 1, 13, 1),
    Sketcher.Constraint("Tangent", 13, 2, 14, 2),
    Sketcher.Constraint("Tangent", 14, 1, 9, 1),
    Sketcher.Constraint("Tangent", 15, 2, 16, 2),
    Sketcher.Constraint("Tangent", 16, 1, 17, 1),
    Sketcher.Constraint("Coincident", 17, 2, 18, 1),
    Sketcher.Constraint("Coincident", 18, 2, 19, 1),
    Sketcher.Constraint("Tangent", 19, 2, 20, 2),
    Sketcher.Constraint("Tangent", 20, 1, 15, 1),
    Sketcher.Constraint("Coincident", 21, 2, 22, 1),
    Sketcher.Constraint("Tangent", 22, 2, 23, 2),
    Sketcher.Constraint("Tangent", 23, 1, 24, 1),
    Sketcher.Constraint("Tangent", 24, 2, 25, 2),
    Sketcher.Constraint("Tangent", 25, 1, 26, 1),
    Sketcher.Constraint("Coincident", 26, 2, 21, 1),
    Sketcher.Constraint("Horizontal", 2),
    Sketcher.Constraint("Vertical", 7),
    Sketcher.Constraint("Horizontal", 8),
    Sketcher.Constraint("Horizontal", 11),
    Sketcher.Constraint("Equal", 1, 3),
    Sketcher.Constraint("Equal", 3, 5),
    Sketcher.Constraint("Equal", 5, 10),
    Sketcher.Constraint("Equal", 10, 12),
    Sketcher.Constraint("Equal", 12, 14),
    Sketcher.Constraint("Equal", 14, 16),
    Sketcher.Constraint("Equal", 16, 20),
    Sketcher.Constraint("Equal", 20, 23),
    Sketcher.Constraint("Equal", 23, 25),
    Sketcher.Constraint("Parallel", 4, 6),
    Sketcher.Constraint("Parallel", 0, 9),
    Sketcher.Constraint("Parallel", 13, 17),
    Sketcher.Constraint("Parallel", 19, 22),
    Sketcher.Constraint("Parallel", 15, 24),
    Sketcher.Constraint("Radius", 1, 2.0),
    Sketcher.Constraint("Angle", 19, Q("-45 deg")),
    Sketcher.Constraint("DistanceY", 23, 1, 16, 1, 21.519999),
    Sketcher.Constraint("Distance", 0, 19.066401),
    Sketcher.Constraint("DistanceY", 7, 1, 7, 2, 6.20858),
    Sketcher.Constraint("DistanceX", 16, 3, -1, 1, 36.582099),
    Sketcher.Constraint("DistanceX", 3, 3, 5, 3, 9.1864),
    Sketcher.Constraint("DistanceX", 6, 2, 4, 2, 17.259499),
    Sketcher.Constraint("DistanceY", 5, 1, 6, 2, 2.2293),
    Sketcher.Constraint("DistanceY", 3, 1, 7, 2, 23.7297),
    Sketcher.Constraint("DistanceY", 13, 2, 10, 3, 26.099201),
    Sketcher.Constraint("DistanceY", 12, 1, 17, 2, 2.508401),
    Sketcher.Constraint("DistanceX", 17, 2, 19, 2, 37.779201),
    Sketcher.Constraint("DistanceY", 21, 2, 23, 3, 21.151699),
    Sketcher.Constraint("DistanceX", 15, 2, 21, 2, 7.415301),
    Sketcher.Constraint("DistanceY", 25, 1, 19, 2, 24.935398),
    Sketcher.Constraint("Distance", 15, 80.566432),
    Sketcher.Constraint("Distance", 17, 53.035512),
    Sketcher.Constraint("Distance", 18, 17.344981),
    Sketcher.Constraint("Distance", 19, 31.189949),
    Sketcher.Constraint("Distance", 21, 53.95492),
    Sketcher.Constraint("DistanceY", -1, 1, 1, 3, 102.286109),
    Sketcher.Constraint("DistanceX", 3, 3, -1, 1, 121.190489),
    Sketcher.Constraint("DistanceY", -1, 1, 10, 3, 124.054738),
    Sketcher.Constraint("DistanceX", 14, 3, -1, 1, 71.861172),
    Sketcher.Constraint("DistanceX", -1, 1, 25, 3, 33.743708),
])
sketch2.setExpression("Constraints[45]", "Params.sketch2_radius")
pocket1 = body.newObject("PartDesign::Pocket", "Pocket")
pocket1.Profile = sketch2
pocket1.setExpression("Length", "Params.pocket1_length")
pocket1.Reversed = True

doc.recompute()
